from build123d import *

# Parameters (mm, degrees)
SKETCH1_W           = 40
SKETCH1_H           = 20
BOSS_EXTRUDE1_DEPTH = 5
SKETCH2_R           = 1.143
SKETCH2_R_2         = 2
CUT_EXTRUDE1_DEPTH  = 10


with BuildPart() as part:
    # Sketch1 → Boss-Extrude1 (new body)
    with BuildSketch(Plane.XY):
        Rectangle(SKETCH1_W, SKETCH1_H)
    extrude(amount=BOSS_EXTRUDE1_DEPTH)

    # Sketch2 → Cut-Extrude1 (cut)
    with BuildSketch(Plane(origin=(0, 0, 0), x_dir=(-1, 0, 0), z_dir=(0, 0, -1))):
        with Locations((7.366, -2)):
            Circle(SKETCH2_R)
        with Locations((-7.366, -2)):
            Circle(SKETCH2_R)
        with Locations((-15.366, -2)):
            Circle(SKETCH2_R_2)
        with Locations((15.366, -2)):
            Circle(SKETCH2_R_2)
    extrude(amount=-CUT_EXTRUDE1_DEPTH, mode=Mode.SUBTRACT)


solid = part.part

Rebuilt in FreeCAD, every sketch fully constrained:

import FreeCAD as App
import Part
import Sketcher
Q = App.Units.Quantity


def add_polygon(sketch, points):
    """Adds a closed chain of lines whose ends are joined by coincident constraints."""
    first, n = sketch.GeometryCount, len(points)
    for a, b in zip(points, points[1:] + points[:1]):
        sketch.addGeometry(Part.LineSegment(App.Vector(*a, 0), App.Vector(*b, 0)), False)
    for i in range(n):
        sketch.addConstraint(Sketcher.Constraint("Coincident", first + i, 2, first + (i + 1) % n, 1))

doc = App.newDocument("Part")
body = doc.addObject("PartDesign::Body", "Body")

sketch1 = body.newObject("Sketcher::SketchObject", "Sketch")
sketch1.AttachmentSupport = (doc.getObject("XY_Plane"), [""])
sketch1.MapMode = "FlatFace"
add_polygon(sketch1, [(-20, 10), (-20, -10), (20, -10), (20, 10)])
sketch1.addConstraint(Sketcher.Constraint("Vertical", 0))
sketch1.addConstraint(Sketcher.Constraint("Horizontal", 1))
sketch1.addConstraint(Sketcher.Constraint("Vertical", 2))
sketch1.addConstraint(Sketcher.Constraint("Horizontal", 3))
sketch1.addConstraint(Sketcher.Constraint("Symmetric", 0, 2, 2, 2, -1, 1))
sketch1.addConstraint(Sketcher.Constraint("DistanceX", 1, 1, 1, 2, Q("40 mm")))
sketch1.addConstraint(Sketcher.Constraint("DistanceY", 0, 2, 0, 1, Q("20 mm")))
pad1 = body.newObject("PartDesign::Pad", "Pad")
pad1.Profile = sketch1
pad1.Length = 5

sketch2 = body.newObject("Sketcher::SketchObject", "Sketch001")
sketch2.AttachmentSupport = (doc.getObject("XY_Plane"), [""])
sketch2.MapMode = "FlatFace"
sketch2.addGeometry(Part.Circle(App.Vector(-7.366, -2, 0), App.Vector(0, 0, 1), 1.143), False)
sketch2.addGeometry(Part.Circle(App.Vector(7.366, -2, 0), App.Vector(0, 0, 1), 1.143), False)
sketch2.addGeometry(Part.Circle(App.Vector(15.366, -2, 0), App.Vector(0, 0, 1), 2), False)
sketch2.addGeometry(Part.Circle(App.Vector(-15.366, -2, 0), App.Vector(0, 0, 1), 2), False)
sketch2.addConstraint(Sketcher.Constraint("Equal", 0, 1))
sketch2.addConstraint(Sketcher.Constraint("Equal", 2, 3))
sketch2.addConstraint(Sketcher.Constraint("Symmetric", 0, 3, 1, 3, -2))
sketch2.addConstraint(Sketcher.Constraint("Symmetric", 2, 3, 3, 3, -2))
sketch2.addConstraint(Sketcher.Constraint("Horizontal", 1, 3, 2, 3))
sketch2.addConstraint(Sketcher.Constraint("Diameter", 2, Q("4 mm")))
sketch2.addConstraint(Sketcher.Constraint("Diameter", 0, Q("2.286 mm")))
sketch2.addConstraint(Sketcher.Constraint("DistanceY", 0, 3, -1, 1, Q("2 mm")))
sketch2.addConstraint(Sketcher.Constraint("DistanceX", 1, 3, 2, 3, Q("8 mm")))
sketch2.addConstraint(Sketcher.Constraint("DistanceX", 0, 3, -1, 1, Q("7.366 mm")))
pocket1 = body.newObject("PartDesign::Pocket", "Pocket")
pocket1.Profile = sketch2
pocket1.Length = 10
pocket1.Reversed = True

doc.recompute()
